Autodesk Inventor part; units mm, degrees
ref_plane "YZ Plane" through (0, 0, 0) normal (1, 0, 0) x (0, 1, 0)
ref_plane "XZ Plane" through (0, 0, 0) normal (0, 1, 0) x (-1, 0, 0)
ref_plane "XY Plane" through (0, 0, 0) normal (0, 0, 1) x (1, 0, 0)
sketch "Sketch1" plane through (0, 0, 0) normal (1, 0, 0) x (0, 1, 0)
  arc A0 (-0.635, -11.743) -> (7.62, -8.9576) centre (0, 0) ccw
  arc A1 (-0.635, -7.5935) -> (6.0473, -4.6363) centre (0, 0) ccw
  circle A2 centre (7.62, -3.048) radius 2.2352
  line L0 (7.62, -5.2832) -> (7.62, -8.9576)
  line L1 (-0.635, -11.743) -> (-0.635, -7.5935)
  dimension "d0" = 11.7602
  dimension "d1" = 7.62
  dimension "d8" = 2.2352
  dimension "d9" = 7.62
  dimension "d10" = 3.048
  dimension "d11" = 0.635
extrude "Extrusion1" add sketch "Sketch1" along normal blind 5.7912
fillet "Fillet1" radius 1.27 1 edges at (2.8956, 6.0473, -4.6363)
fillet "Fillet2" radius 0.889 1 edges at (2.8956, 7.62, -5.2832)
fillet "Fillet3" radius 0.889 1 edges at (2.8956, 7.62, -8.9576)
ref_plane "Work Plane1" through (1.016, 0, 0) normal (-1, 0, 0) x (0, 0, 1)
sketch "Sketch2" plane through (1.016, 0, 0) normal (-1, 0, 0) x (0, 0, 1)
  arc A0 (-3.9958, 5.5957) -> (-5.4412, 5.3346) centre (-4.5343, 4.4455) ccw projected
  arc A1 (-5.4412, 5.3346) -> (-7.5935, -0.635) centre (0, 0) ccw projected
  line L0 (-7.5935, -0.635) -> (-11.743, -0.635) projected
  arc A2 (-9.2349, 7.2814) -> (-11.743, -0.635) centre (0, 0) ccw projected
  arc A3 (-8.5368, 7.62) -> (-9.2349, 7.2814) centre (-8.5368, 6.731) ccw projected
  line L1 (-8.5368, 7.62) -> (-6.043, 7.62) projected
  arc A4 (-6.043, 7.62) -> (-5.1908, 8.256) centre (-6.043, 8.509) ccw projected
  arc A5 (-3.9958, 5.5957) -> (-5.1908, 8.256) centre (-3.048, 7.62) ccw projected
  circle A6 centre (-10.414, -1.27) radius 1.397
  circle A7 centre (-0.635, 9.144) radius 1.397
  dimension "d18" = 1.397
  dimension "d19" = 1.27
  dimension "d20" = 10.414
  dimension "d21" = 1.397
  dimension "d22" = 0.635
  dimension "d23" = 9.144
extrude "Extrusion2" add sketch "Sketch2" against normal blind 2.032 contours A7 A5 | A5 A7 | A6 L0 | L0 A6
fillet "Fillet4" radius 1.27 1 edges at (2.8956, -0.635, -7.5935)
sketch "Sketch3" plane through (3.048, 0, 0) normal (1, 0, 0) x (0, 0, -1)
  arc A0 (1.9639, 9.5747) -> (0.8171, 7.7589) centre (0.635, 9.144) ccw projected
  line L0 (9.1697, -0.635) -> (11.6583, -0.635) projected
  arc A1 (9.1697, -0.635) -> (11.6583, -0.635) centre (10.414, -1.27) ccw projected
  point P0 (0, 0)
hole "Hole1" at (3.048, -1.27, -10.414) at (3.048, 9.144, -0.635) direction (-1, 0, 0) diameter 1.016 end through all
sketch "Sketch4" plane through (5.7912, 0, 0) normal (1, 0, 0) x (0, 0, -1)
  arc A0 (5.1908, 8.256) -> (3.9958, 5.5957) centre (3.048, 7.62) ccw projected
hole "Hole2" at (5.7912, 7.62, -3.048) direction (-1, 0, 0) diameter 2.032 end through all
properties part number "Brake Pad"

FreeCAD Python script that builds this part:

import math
import FreeCAD as App
import Part
import Sketcher
Q = App.Units.Quantity


def edges_at(feature, points):
    """Names of the edges that pass closest to the given points."""
    edges = feature.Shape.Edges
    near = lambda p: min(range(len(edges)), key=lambda i: edges[i].distToShape(Part.Vertex(*p))[0])
    return sorted({f"Edge{near(p) + 1}" for p in points})

doc = App.newDocument("Part")
body = doc.addObject("PartDesign::Body", "Body")

# Sketch on YZ plane
sketch1 = body.newObject("Sketcher::SketchObject", "Sketch")
sketch1.AttachmentSupport = (doc.getObject("YZ_Plane"), [""])
sketch1.MapMode = "FlatFace"
sketch1.addGeometry(Part.LineSegment(App.Vector(-0.6, -7.6, 0), App.Vector(-0.6, -11.7, 0)), False)
sketch1.addGeometry(Part.ArcOfCircle(Part.Circle(App.Vector(0, 0, 0), App.Vector(0, 0, 1), 11.8), math.radians(-93), math.radians(-50)), False)
sketch1.addGeometry(Part.LineSegment(App.Vector(7.6, -9, 0), App.Vector(7.6, -5.3, 0)), False)
sketch1.addGeometry(Part.ArcOfCircle(Part.Circle(App.Vector(7.6, -3, 0), App.Vector(0, 0, 1), 2.2), math.radians(-90), math.radians(225)), False)
sketch1.addGeometry(Part.ArcOfCircle(Part.Circle(App.Vector(0, 0, 0), App.Vector(0, 0, 1), 7.6), math.radians(-95), math.radians(-37)), False)
sketch1.addConstraint(Sketcher.Constraint("Coincident", 0, 2, 1, 1))
sketch1.addConstraint(Sketcher.Constraint("Coincident", 1, 2, 2, 1))
sketch1.addConstraint(Sketcher.Constraint("Coincident", 2, 2, 3, 1))
sketch1.addConstraint(Sketcher.Constraint("Coincident", 3, 2, 4, 2))
sketch1.addConstraint(Sketcher.Constraint("Coincident", 4, 1, 0, 1))
sketch1.addConstraint(Sketcher.Constraint("Vertical", 0))
sketch1.addConstraint(Sketcher.Constraint("Vertical", 2))
sketch1.addConstraint(Sketcher.Constraint("Coincident", 1, 3, -1, 1))
sketch1.addConstraint(Sketcher.Constraint("Coincident", 4, 3, -1, 1))
sketch1.addConstraint(Sketcher.Constraint("Vertical", 3, 3, 1, 2))
sketch1.addConstraint(Sketcher.Constraint("Radius", 4, Q("0.3 in")))
sketch1.addConstraint(Sketcher.Constraint("Radius", 1, Q("0.463 in")))
sketch1.addConstraint(Sketcher.Constraint("Radius", 3, Q("0.088 in")))
sketch1.addConstraint(Sketcher.Constraint("DistanceX", -1, 1, 3, 3, Q("0.3 in")))
sketch1.addConstraint(Sketcher.Constraint("DistanceY", 3, 3, -1, 1, Q("0.12 in")))
sketch1.addConstraint(Sketcher.Constraint("DistanceX", 0, 2, -1, 1, Q("0.025 in")))
pad1 = body.newObject("PartDesign::Pad", "Pad")
pad1.Profile = sketch1
pad1.Length = Q("0.228 in")
doc.recompute()

fillet = body.newObject("PartDesign::Fillet", "Fillet")
fillet.Base = (pad1, edges_at(pad1, [(2.896, 6.047, -4.636)]))
fillet.Radius = Q("0.05 in")
doc.recompute()

fillet2 = body.newObject("PartDesign::Fillet", "Fillet001")
fillet2.Base = (fillet, edges_at(fillet, [(2.896, 7.62, -5.283)]))
fillet2.Radius = Q("0.035 in")
doc.recompute()

fillet3 = body.newObject("PartDesign::Fillet", "Fillet002")
fillet3.Base = (fillet2, edges_at(fillet2, [(2.896, 7.62, -8.958)]))
fillet3.Radius = Q("0.035 in")

# Sketch on YZ plane
sketch2 = body.newObject("Sketcher::SketchObject", "Sketch001")
sketch2.AttachmentSupport = (doc.getObject("YZ_Plane"), [""])
sketch2.MapMode = "FlatFace"
sketch2.AttachmentOffset = App.Placement(App.Vector(0, 0, 0.04 * 25.4), App.Rotation())
sketch2.addGeometry(Part.Circle(App.Vector(9.1, -0.6, 0), App.Vector(0, 0, 1), 1.4), False)
sketch2.addGeometry(Part.Circle(App.Vector(-1.3, -10.4, 0), App.Vector(0, 0, 1), 1.4), False)
sketch2.addConstraint(Sketcher.Constraint("Equal", 0, 1))
sketch2.addConstraint(Sketcher.Constraint("Diameter", 0, Q("0.11 in")))
sketch2.addConstraint(Sketcher.Constraint("DistanceX", -1, 1, 0, 3, Q("0.36 in")))
sketch2.addConstraint(Sketcher.Constraint("DistanceX", 1, 3, -1, 1, Q("0.05 in")))
sketch2.addConstraint(Sketcher.Constraint("DistanceY", 1, 3, -1, 1, Q("0.41 in")))
sketch2.addConstraint(Sketcher.Constraint("DistanceY", 0, 3, -1, 1, Q("0.025 in")))
pad2 = body.newObject("PartDesign::Pad", "Pad001")
pad2.Profile = sketch2
pad2.Length = Q("0.08 in")
doc.recompute()

fillet4 = body.newObject("PartDesign::Fillet", "Fillet003")
fillet4.Base = (pad2, edges_at(pad2, [(2.896, -0.635, -7.593)]))
fillet4.Radius = Q("0.05 in")

# Sketch on YZ plane
sketch3 = body.newObject("Sketcher::SketchObject", "Sketch002")
sketch3.AttachmentSupport = (doc.getObject("YZ_Plane"), [""])
sketch3.MapMode = "FlatFace"
sketch3.AttachmentOffset = App.Placement(App.Vector(0, 0, 0.12 * 25.4), App.Rotation())
sketch3.addGeometry(Part.Circle(App.Vector(-1.3, -10.4, 0), App.Vector(0, 0, 1), 0.5), False)
sketch3.addGeometry(Part.Circle(App.Vector(9.1, -0.6, 0), App.Vector(0, 0, 1), 0.5), False)
sketch3.addConstraint(Sketcher.Constraint("Equal", 0, 1))
sketch3.addConstraint(Sketcher.Constraint("Diameter", 0, Q("0.04 in")))
sketch3.addConstraint(Sketcher.Constraint("DistanceX", 0, 3, -1, 1, Q("0.05 in")))
sketch3.addConstraint(Sketcher.Constraint("DistanceY", 0, 3, -1, 1, Q("0.41 in")))
sketch3.addConstraint(Sketcher.Constraint("DistanceX", -1, 1, 1, 3, Q("0.36 in")))
sketch3.addConstraint(Sketcher.Constraint("DistanceY", 1, 3, -1, 1, Q("0.025 in")))
doc.recompute()
hole = body.newObject("PartDesign::Hole", "Hole")
hole.Profile = sketch3
hole.ThreadType = "None"
hole.Diameter = Q("0.04 in")
hole.DepthType = "ThroughAll"

# Sketch on YZ plane
sketch4 = body.newObject("Sketcher::SketchObject", "Sketch003")
sketch4.AttachmentSupport = (doc.getObject("YZ_Plane"), [""])
sketch4.MapMode = "FlatFace"
sketch4.AttachmentOffset = App.Placement(App.Vector(0, 0, 0.228 * 25.4), App.Rotation())
sketch4.addGeometry(Part.Circle(App.Vector(7.6, -3, 0), App.Vector(0, 0, 1), 1), False)
sketch4.addConstraint(Sketcher.Constraint("Diameter", 0, Q("0.08 in")))
sketch4.addConstraint(Sketcher.Constraint("DistanceX", -1, 1, 0, 3, Q("0.3 in")))
sketch4.addConstraint(Sketcher.Constraint("DistanceY", 0, 3, -1, 1, Q("0.12 in")))
doc.recompute()
hole2 = body.newObject("PartDesign::Hole", "Hole001")
hole2.Profile = sketch4
hole2.ThreadType = "None"
hole2.Diameter = Q("0.08 in")
hole2.DepthType = "ThroughAll"

doc.recompute()
